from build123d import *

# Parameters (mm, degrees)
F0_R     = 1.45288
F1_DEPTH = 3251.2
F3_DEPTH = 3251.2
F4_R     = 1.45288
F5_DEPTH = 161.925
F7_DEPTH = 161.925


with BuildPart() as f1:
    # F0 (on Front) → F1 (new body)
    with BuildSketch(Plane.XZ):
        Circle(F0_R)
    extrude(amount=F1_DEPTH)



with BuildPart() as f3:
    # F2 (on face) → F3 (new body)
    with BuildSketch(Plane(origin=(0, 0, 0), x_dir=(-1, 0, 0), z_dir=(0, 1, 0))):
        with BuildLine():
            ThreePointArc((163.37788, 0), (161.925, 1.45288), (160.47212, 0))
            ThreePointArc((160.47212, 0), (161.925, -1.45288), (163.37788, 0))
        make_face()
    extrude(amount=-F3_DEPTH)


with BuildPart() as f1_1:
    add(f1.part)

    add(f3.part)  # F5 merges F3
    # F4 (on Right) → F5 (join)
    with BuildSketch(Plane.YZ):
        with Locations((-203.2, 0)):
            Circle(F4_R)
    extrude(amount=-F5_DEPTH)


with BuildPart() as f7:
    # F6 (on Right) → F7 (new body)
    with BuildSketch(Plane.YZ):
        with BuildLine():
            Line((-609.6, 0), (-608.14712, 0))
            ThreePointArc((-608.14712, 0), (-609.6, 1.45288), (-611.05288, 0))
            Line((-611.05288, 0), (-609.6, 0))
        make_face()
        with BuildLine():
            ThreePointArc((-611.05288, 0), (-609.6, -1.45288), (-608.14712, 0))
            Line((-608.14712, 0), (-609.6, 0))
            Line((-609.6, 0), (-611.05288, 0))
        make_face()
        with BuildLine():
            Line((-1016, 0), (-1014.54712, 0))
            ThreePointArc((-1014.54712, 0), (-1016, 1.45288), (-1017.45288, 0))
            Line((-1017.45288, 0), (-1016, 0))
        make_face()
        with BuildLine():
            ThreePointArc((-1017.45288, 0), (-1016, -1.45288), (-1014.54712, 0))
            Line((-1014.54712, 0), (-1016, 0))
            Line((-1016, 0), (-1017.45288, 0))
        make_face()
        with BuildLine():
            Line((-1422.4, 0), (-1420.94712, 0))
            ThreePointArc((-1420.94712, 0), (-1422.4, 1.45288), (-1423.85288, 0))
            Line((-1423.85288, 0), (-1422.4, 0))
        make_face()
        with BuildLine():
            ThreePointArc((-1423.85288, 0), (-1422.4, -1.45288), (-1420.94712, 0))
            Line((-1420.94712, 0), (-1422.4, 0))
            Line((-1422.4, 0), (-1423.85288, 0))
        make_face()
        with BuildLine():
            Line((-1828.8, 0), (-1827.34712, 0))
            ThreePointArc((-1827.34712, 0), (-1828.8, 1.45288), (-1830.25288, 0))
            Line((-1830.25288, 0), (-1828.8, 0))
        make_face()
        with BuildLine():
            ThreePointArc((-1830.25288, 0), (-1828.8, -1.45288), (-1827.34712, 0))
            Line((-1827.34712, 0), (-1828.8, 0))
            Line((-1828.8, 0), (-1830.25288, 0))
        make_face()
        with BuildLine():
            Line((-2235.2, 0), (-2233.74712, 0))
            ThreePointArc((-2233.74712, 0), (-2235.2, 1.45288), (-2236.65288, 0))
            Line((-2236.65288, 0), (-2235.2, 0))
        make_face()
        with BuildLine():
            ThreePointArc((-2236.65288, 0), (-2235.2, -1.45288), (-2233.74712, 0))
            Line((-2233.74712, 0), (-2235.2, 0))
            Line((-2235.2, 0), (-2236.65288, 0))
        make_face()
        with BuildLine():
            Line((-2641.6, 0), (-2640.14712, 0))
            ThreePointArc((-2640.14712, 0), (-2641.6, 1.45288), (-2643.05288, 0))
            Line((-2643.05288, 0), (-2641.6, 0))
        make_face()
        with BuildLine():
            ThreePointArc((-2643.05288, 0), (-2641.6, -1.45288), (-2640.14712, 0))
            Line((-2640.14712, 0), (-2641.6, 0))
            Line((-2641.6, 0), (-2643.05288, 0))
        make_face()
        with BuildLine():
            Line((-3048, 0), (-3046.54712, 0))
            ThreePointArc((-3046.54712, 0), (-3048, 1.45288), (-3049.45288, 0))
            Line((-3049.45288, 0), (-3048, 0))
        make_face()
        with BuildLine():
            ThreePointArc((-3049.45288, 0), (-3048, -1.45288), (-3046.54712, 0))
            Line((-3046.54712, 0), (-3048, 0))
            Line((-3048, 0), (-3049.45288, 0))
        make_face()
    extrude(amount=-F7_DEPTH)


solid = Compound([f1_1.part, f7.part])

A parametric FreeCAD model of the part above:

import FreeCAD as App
import Part
import Sketcher
from FreeCAD import Vector
Q = App.Units.Quantity

doc = App.newDocument("Part")
params = doc.addObject("Spreadsheet::Sheet", "Params")
for row, (alias, value) in enumerate([
    ("pad1_length", "128 in"),
    ("pad2_length", "128 in"),
    ("pad3_length", "6.375 in"),
    ("pad4_length", "6.375 in"),
], start=1):
    params.set(f"A{row}", alias)
    params.set(f"B{row}", "=" + value)
    params.setAlias(f"B{row}", alias)

body = doc.addObject("PartDesign::Body", "Body")

sketch1 = body.newObject("Sketcher::SketchObject", "Sketch")
sketch1.AttachmentSupport = (doc.getObject("XZ_Plane"), [""])
sketch1.MapMode = "FlatFace"
sketch1.addGeometry(Part.Circle(Vector(0, 0, 0), Vector(0, 0, 1), 1.5), False)
sketch1.addConstraint([
    Sketcher.Constraint("Coincident", 0, 3, -1, 1),
    Sketcher.Constraint("Diameter", 0, Q("0.1144 in")),
])
pad1 = body.newObject("PartDesign::Pad", "Pad")
pad1.Profile = sketch1
pad1.setExpression("Length", "Params.pad1_length")
body2 = doc.addObject("PartDesign::Body", "Body001")

sketch2 = body2.newObject("Sketcher::SketchObject", "Sketch001")
sketch2.AttachmentSupport = (doc.getObject("XZ_Plane001"), [""])
sketch2.MapMode = "FlatFace"
sketch2.addGeometry(Part.Circle(Vector(-161.9, 0, 0), Vector(0, 0, 1), 1.5), False)
sketch2.addConstraint([
    Sketcher.Constraint("PointOnObject", 0, 3, -1),
    Sketcher.Constraint("Diameter", 0, Q("0.1144 in")),
    Sketcher.Constraint("DistanceX", 0, 3, -1, 1, Q("6.375 in")),
])
pad2 = body2.newObject("PartDesign::Pad", "Pad001")
pad2.Profile = sketch2
pad2.setExpression("Length", "Params.pad2_length")
body.AllowCompound = True
doc.recompute()

boolean = body.newObject("PartDesign::Boolean", "Boolean")
boolean.Type = "Fuse"
boolean.addObjects([body2])

sketch3 = body.newObject("Sketcher::SketchObject", "Sketch002")
sketch3.AttachmentSupport = (doc.getObject("YZ_Plane"), [""])
sketch3.MapMode = "FlatFace"
sketch3.addGeometry(Part.Circle(Vector(-203.2, 0, 0), Vector(0, 0, 1), 1.5), False)
sketch3.addConstraint([
    Sketcher.Constraint("PointOnObject", 0, 3, -1),
    Sketcher.Constraint("DistanceX", 0, 3, -1, 1, Q("8 in")),
    Sketcher.Constraint("Diameter", 0, Q("0.1144 in")),
])
pad3 = body.newObject("PartDesign::Pad", "Pad002")
pad3.Profile = sketch3
pad3.setExpression("Length", "Params.pad3_length")
pad3.Reversed = True
body3 = doc.addObject("PartDesign::Body", "Body002")
body3.AllowCompound = True

sketch4 = body3.newObject("Sketcher::SketchObject", "Sketch003")
sketch4.AttachmentSupport = (doc.getObject("YZ_Plane002"), [""])
sketch4.MapMode = "FlatFace"
sketch4.addGeometry([
    Part.Circle(Vector(-609.6, 0, 0), Vector(0, 0, 1), 1.5),
    Part.Circle(Vector(-1016, 0, 0), Vector(0, 0, 1), 1.5),
    Part.Circle(Vector(-1422.4, 0, 0), Vector(0, 0, 1), 1.5),
    Part.Circle(Vector(-1828.8, 0, 0), Vector(0, 0, 1), 1.5),
    Part.Circle(Vector(-2235.2, 0, 0), Vector(0, 0, 1), 1.5),
    Part.Circle(Vector(-2641.6, 0, 0), Vector(0, 0, 1), 1.5),
    Part.Circle(Vector(-3048, 0, 0), Vector(0, 0, 1), 1.5),
], False)
sketch4.addConstraint([
    Sketcher.Constraint("Equal", 0, 1),
    Sketcher.Constraint("Equal", 1, 2),
    Sketcher.Constraint("Equal", 2, 3),
    Sketcher.Constraint("Equal", 3, 4),
    Sketcher.Constraint("Equal", 4, 5),
    Sketcher.Constraint("Equal", 5, 6),
    Sketcher.Constraint("PointOnObject", 0, 3, -1),
    Sketcher.Constraint("PointOnObject", 1, 3, -1),
    Sketcher.Constraint("PointOnObject", 2, 3, -1),
    Sketcher.Constraint("PointOnObject", 3, 3, -1),
    Sketcher.Constraint("PointOnObject", 4, 3, -1),
    Sketcher.Constraint("PointOnObject", 5, 3, -1),
    Sketcher.Constraint("PointOnObject", 6, 3, -1),
    Sketcher.Constraint("DistanceX", 0, 3, -1, 1, Q("24 in")),
    Sketcher.Constraint("DistanceX", 1, 3, -1, 1, Q("40 in")),
    Sketcher.Constraint("DistanceX", 2, 3, -1, 1, Q("56 in")),
    Sketcher.Constraint("DistanceX", 3, 3, -1, 1, Q("72 in")),
    Sketcher.Constraint("DistanceX", 4, 3, -1, 1, Q("88 in")),
    Sketcher.Constraint("DistanceX", 5, 3, -1, 1, Q("104 in")),
    Sketcher.Constraint("DistanceX", 6, 3, -1, 1, Q("120 in")),
    Sketcher.Constraint("Diameter", 0, Q("0.1144 in")),
])
pad4 = body3.newObject("PartDesign::Pad", "Pad003")
pad4.Profile = sketch4
pad4.setExpression("Length", "Params.pad4_length")
pad4.Reversed = True

doc.recompute()
